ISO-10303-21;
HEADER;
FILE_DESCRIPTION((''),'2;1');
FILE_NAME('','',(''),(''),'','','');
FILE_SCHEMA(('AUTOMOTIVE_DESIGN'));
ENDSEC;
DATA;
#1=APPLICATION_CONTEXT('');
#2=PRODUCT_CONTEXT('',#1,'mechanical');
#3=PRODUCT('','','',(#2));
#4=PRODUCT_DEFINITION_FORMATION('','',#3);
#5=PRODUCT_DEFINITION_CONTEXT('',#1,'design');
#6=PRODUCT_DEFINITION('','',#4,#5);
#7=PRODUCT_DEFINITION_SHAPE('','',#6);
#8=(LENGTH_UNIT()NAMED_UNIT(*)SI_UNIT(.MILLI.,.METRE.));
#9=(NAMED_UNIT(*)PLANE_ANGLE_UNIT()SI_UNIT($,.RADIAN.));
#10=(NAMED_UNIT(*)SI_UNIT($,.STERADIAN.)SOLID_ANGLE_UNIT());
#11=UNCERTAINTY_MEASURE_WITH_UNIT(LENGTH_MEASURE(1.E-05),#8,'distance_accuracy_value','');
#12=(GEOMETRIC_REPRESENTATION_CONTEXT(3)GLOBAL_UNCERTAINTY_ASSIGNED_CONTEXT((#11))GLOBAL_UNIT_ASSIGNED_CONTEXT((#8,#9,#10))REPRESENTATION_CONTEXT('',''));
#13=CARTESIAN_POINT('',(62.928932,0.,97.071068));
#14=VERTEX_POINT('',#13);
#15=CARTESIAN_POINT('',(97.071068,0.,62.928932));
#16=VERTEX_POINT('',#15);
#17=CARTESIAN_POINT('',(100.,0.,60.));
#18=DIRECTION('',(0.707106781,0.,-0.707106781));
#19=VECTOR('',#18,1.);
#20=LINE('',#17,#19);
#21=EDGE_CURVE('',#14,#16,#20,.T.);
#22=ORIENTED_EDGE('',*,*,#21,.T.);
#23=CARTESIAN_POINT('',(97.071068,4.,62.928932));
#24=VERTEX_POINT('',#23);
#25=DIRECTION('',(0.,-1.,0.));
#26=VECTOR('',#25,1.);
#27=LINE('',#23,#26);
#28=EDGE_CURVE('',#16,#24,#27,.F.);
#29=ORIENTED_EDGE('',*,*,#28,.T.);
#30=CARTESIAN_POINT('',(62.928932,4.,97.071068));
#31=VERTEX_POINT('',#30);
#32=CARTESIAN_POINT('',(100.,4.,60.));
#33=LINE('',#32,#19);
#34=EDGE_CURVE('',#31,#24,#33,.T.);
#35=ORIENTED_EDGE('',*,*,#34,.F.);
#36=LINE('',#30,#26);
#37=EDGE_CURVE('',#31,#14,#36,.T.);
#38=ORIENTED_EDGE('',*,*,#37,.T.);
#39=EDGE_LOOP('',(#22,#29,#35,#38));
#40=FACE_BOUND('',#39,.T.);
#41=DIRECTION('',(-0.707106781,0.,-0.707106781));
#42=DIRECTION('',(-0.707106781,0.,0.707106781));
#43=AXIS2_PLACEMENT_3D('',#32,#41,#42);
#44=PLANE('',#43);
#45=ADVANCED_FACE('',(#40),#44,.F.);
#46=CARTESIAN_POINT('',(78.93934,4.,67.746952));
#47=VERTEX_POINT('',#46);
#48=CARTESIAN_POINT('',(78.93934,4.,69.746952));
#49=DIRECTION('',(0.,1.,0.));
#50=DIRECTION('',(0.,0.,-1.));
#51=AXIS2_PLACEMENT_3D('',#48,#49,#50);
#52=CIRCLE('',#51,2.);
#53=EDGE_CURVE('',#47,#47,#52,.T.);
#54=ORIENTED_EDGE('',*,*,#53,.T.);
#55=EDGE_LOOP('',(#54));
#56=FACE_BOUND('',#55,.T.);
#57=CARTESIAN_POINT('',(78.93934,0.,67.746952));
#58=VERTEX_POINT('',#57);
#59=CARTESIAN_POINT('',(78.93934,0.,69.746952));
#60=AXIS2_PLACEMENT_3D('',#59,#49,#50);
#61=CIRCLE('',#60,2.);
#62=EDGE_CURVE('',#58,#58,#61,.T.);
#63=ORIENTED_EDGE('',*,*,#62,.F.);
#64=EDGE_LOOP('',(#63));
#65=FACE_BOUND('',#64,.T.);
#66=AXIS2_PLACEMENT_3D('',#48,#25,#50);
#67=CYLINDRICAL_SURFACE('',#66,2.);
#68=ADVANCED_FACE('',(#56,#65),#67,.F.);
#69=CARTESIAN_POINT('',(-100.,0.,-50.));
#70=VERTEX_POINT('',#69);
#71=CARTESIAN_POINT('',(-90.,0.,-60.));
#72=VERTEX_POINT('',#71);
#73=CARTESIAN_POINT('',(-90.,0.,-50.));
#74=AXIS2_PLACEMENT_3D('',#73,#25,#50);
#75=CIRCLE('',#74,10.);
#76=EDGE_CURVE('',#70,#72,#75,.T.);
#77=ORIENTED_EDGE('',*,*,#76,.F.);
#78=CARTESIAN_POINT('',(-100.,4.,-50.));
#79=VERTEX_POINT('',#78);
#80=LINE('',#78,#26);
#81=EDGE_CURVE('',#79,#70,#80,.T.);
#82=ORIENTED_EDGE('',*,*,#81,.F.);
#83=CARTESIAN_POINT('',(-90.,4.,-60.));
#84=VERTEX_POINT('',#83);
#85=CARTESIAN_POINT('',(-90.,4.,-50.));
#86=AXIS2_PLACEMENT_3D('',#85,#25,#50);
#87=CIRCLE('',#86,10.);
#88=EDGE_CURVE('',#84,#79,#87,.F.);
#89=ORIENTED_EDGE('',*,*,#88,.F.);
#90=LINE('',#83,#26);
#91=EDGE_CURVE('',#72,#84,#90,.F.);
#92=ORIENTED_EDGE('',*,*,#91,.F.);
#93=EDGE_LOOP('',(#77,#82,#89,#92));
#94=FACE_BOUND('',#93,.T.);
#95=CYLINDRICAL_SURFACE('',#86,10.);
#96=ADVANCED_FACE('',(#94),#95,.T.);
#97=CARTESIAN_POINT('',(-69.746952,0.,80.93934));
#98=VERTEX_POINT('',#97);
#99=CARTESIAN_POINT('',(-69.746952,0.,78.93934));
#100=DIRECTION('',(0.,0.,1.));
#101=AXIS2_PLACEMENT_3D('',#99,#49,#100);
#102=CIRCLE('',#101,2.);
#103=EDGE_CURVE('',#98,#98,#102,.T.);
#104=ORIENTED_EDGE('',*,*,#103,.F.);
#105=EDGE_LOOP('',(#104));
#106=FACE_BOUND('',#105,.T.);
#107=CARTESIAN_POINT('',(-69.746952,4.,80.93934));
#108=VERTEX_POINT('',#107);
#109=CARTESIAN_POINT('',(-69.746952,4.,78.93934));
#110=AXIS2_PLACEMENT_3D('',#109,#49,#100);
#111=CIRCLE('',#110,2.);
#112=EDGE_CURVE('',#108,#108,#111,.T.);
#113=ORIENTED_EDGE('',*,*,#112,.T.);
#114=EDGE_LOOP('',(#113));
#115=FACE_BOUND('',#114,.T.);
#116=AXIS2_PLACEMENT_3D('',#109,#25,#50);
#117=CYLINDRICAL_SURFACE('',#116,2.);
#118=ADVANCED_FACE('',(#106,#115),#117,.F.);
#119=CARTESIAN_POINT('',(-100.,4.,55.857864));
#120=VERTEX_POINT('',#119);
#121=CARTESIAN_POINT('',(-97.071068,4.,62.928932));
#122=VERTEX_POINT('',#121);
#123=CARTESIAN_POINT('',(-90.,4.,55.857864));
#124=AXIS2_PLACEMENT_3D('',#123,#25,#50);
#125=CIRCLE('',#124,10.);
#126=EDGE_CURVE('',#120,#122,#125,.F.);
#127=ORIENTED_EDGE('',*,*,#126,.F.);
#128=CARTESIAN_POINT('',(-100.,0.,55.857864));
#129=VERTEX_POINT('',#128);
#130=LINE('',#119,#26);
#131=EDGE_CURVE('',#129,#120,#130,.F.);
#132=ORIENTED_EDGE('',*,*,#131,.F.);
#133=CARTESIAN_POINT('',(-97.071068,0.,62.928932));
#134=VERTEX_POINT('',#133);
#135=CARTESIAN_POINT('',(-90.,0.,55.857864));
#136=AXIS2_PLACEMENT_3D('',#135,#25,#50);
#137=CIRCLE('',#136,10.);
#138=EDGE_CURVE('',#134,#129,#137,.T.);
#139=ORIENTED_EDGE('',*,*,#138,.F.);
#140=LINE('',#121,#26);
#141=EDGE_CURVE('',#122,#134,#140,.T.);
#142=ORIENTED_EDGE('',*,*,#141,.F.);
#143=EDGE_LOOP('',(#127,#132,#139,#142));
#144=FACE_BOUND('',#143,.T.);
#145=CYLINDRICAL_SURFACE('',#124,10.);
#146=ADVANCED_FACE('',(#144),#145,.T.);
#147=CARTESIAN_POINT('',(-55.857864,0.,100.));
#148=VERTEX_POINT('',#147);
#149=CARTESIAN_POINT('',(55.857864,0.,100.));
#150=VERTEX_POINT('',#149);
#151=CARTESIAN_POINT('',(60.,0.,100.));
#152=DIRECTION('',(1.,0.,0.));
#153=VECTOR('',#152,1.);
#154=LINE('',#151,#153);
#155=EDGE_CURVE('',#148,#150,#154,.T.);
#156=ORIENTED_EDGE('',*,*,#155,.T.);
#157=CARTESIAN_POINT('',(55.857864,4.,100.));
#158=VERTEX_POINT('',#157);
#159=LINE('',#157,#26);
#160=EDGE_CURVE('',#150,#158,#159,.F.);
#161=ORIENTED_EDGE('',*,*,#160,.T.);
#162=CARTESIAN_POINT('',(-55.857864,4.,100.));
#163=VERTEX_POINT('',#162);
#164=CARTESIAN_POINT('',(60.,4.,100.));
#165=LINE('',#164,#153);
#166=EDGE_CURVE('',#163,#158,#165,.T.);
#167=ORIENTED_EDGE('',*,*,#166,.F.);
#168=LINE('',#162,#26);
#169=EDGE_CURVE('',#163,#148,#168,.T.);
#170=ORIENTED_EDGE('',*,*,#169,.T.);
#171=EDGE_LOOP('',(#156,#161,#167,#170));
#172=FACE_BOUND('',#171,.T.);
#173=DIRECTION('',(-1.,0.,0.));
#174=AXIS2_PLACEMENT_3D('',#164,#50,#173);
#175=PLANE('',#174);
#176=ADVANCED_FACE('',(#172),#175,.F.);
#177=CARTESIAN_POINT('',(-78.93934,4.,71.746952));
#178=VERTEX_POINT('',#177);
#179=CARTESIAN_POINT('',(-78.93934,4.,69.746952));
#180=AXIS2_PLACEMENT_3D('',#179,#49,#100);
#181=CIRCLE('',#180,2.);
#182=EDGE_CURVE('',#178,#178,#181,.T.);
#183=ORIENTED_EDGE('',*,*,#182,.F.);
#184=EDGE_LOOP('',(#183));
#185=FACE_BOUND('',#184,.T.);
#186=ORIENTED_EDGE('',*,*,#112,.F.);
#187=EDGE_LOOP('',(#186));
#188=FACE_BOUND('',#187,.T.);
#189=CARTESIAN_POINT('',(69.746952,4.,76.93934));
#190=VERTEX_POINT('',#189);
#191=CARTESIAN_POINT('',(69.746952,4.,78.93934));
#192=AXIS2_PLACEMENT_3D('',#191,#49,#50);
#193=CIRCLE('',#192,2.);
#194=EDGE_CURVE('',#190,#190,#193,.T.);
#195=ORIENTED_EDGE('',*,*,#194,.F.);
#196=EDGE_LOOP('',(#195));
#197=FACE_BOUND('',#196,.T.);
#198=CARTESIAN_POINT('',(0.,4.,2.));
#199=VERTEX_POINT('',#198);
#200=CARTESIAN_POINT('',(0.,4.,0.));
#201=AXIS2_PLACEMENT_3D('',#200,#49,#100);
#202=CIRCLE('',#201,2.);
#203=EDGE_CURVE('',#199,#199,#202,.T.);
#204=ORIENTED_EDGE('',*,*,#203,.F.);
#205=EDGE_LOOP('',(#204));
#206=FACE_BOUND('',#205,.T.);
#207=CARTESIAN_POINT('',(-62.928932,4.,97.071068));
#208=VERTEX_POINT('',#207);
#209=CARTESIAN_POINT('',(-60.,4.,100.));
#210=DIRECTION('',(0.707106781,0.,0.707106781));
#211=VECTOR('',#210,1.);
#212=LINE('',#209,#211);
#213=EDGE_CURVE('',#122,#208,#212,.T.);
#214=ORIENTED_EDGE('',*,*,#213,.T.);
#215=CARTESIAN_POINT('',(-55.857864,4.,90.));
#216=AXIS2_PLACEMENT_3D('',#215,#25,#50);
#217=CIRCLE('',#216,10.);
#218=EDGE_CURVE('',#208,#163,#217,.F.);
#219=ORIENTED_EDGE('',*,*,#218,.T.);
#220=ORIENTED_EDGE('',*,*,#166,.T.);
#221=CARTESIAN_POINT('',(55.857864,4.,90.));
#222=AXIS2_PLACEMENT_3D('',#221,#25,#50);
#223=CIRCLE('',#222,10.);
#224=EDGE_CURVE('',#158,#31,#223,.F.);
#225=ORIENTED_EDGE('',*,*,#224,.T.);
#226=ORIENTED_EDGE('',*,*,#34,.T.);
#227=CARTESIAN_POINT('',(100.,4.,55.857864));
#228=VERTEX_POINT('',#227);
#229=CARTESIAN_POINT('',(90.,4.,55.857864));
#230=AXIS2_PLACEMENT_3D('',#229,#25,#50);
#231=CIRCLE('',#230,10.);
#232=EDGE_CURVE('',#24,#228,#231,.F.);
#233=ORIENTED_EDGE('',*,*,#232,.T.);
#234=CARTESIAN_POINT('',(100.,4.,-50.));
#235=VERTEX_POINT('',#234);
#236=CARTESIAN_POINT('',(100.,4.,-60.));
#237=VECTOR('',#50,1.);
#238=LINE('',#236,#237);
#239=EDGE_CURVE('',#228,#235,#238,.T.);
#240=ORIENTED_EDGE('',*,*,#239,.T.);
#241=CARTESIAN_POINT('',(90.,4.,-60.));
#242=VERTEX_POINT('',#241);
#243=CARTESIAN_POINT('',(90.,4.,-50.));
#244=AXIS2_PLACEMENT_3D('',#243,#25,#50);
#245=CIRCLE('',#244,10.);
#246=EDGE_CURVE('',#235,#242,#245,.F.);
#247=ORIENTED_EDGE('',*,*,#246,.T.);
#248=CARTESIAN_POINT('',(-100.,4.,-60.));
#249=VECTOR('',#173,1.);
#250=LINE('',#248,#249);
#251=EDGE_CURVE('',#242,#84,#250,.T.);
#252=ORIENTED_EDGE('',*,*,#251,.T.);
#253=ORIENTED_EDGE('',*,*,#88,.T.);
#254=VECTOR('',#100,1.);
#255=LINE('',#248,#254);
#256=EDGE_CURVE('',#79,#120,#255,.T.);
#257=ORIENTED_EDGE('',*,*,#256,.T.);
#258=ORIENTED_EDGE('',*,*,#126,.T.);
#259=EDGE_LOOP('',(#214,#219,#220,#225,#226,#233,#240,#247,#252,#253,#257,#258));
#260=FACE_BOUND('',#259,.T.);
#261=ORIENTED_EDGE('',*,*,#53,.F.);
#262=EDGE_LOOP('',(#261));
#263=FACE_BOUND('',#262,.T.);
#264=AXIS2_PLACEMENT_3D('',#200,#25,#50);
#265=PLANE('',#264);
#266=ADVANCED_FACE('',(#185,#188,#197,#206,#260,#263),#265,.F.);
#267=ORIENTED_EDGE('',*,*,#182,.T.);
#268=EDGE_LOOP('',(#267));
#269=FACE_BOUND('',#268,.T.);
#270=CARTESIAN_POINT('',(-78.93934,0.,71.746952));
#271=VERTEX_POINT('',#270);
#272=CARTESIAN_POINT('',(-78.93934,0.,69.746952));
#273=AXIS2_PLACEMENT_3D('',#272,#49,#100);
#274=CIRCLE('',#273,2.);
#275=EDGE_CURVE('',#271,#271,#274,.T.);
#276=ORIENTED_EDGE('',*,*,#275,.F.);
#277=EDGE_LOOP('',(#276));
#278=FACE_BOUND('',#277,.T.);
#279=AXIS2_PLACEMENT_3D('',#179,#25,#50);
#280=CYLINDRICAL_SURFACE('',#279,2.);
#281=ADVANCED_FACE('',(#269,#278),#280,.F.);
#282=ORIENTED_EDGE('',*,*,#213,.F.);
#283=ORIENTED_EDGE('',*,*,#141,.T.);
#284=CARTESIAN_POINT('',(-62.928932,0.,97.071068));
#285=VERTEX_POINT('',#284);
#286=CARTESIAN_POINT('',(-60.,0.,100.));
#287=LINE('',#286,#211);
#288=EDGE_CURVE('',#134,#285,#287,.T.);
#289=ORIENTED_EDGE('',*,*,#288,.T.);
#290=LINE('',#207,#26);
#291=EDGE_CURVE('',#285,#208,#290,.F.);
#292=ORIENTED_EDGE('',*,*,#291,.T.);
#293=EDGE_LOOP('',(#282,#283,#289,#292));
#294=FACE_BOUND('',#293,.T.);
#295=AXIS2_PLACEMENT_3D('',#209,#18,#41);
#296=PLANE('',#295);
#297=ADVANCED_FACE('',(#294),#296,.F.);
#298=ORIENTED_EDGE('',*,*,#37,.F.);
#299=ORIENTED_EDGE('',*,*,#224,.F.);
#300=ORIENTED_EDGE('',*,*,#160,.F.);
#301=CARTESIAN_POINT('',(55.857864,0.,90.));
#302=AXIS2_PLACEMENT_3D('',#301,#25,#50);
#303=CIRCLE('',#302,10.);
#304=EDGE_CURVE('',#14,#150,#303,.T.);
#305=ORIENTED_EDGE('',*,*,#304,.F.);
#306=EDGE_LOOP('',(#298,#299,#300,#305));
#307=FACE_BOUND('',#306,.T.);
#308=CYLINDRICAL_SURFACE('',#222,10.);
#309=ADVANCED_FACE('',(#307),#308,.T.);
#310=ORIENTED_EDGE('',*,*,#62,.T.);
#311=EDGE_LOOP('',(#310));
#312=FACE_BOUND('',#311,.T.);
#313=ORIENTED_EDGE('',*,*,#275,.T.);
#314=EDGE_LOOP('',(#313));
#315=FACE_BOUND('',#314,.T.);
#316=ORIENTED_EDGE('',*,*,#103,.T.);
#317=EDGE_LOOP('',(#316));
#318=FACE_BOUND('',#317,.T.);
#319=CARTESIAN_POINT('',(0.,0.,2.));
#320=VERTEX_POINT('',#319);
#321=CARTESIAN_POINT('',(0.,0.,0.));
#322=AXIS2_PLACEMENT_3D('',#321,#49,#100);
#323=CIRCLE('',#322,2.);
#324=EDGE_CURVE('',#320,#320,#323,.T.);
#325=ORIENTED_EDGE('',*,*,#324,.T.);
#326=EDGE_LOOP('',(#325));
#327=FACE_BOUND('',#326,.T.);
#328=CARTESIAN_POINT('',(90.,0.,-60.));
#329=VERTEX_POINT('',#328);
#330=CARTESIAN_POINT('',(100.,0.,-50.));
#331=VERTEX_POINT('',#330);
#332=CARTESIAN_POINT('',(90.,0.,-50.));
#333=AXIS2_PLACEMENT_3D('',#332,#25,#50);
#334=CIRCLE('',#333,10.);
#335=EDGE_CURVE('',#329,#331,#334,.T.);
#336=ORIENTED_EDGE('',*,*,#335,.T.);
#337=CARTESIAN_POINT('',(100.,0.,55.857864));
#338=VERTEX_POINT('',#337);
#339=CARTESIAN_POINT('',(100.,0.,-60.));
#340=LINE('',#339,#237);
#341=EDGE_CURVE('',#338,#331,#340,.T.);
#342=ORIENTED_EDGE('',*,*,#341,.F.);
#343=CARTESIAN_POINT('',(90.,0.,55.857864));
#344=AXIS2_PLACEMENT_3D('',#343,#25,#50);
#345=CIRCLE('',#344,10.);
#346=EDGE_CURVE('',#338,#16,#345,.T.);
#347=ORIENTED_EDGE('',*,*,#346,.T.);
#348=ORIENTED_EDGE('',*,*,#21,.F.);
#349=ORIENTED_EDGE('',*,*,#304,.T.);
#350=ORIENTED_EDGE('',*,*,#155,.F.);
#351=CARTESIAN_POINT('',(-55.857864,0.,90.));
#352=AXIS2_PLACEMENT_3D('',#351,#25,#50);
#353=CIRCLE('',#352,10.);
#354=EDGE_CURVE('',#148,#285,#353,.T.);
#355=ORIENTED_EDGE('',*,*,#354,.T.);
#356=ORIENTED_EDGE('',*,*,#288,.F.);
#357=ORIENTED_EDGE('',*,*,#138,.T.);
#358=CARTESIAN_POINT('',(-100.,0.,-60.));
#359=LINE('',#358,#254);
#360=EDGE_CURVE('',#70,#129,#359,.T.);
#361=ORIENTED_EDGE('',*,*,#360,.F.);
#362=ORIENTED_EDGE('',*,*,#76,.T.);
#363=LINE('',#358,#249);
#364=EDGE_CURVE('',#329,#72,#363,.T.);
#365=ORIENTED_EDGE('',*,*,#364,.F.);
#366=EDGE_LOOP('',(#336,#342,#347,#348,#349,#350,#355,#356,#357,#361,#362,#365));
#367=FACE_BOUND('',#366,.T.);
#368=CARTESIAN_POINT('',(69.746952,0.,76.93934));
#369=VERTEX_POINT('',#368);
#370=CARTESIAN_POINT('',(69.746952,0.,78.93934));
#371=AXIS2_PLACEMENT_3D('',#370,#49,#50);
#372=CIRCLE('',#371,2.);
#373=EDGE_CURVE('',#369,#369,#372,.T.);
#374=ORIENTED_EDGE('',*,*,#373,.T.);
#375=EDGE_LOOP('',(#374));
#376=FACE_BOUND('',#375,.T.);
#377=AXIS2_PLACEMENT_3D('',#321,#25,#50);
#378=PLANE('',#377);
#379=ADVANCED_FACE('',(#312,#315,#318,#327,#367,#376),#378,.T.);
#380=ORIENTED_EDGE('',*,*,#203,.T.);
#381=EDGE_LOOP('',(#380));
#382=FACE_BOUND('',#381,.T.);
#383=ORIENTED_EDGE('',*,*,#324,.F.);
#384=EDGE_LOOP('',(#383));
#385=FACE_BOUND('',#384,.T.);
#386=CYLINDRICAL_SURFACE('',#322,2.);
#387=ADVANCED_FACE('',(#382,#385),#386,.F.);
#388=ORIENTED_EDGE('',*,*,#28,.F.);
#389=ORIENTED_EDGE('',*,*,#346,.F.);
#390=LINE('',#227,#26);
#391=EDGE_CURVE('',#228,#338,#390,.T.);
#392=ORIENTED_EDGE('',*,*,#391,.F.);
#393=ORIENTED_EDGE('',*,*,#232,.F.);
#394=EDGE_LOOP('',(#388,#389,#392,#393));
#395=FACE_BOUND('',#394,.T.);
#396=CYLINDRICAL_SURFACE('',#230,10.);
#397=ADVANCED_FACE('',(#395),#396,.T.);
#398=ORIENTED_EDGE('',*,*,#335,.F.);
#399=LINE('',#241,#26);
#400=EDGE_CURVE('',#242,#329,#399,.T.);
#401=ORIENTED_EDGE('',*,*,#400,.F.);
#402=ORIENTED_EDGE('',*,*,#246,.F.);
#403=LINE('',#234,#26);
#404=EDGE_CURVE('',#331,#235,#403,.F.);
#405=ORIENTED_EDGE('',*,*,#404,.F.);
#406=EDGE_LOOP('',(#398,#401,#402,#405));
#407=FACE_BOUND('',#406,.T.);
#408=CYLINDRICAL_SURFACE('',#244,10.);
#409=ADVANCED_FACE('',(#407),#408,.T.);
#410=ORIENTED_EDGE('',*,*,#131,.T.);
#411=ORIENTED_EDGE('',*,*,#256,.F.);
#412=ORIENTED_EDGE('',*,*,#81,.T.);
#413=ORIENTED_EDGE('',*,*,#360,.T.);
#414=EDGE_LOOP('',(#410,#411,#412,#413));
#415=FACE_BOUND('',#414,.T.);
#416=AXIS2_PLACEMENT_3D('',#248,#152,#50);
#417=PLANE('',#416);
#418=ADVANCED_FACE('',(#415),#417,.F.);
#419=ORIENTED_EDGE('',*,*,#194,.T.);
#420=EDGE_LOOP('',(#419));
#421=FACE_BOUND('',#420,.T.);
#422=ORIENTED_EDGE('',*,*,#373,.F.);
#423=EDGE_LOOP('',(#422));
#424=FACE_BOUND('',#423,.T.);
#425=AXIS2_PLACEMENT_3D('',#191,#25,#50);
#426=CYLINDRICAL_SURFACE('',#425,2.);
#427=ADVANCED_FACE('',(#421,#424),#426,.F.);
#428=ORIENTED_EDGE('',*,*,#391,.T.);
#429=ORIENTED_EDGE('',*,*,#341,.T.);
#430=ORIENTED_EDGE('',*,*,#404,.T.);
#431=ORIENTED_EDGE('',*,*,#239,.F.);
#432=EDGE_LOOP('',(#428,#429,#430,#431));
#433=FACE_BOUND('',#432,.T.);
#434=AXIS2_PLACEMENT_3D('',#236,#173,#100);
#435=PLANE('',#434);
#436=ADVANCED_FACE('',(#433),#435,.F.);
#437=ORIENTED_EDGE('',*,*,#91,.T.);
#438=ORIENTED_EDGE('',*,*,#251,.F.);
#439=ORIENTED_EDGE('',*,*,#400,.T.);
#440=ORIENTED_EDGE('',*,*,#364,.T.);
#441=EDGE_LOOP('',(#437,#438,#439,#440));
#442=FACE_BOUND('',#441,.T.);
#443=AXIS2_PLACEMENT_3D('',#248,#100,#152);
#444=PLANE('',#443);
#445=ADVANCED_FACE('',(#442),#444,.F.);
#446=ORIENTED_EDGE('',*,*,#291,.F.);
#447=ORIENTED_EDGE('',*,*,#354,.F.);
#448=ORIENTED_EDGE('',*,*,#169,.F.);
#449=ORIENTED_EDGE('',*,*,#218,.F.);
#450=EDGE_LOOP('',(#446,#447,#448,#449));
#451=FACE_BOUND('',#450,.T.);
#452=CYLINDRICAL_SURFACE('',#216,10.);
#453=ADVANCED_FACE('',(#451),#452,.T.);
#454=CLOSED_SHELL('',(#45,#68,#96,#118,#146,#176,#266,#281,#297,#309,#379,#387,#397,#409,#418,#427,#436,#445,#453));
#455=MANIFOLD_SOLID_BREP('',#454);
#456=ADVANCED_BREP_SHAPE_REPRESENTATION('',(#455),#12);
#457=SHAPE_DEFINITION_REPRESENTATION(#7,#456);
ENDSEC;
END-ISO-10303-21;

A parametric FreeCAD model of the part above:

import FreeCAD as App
import Part
import Sketcher
from FreeCAD import Vector


def edges_at(feature, points):
    """Names of the edges that pass closest to the given points."""
    edges = feature.Shape.Edges
    near = lambda p: min(range(len(edges)), key=lambda i: edges[i].distToShape(Part.Vertex(*p))[0])
    return sorted({f"Edge{near(p) + 1}" for p in points})


def add_polygon(sketch, points):
    """Adds a closed chain of lines whose ends are joined by coincident constraints."""
    first, n = sketch.GeometryCount, len(points)
    for a, b in zip(points, points[1:] + points[:1]):
        sketch.addGeometry(Part.LineSegment(App.Vector(*a, 0), App.Vector(*b, 0)), False)
    for i in range(n):
        sketch.addConstraint(Sketcher.Constraint("Coincident", first + i, 2, first + (i + 1) % n, 1))

doc = App.newDocument("Part")
body = doc.addObject("PartDesign::Body", "Body")

sketch1 = body.newObject("Sketcher::SketchObject", "Sketch")
sketch1.AttachmentSupport = (doc.getObject("XZ_Plane"), [""])
sketch1.MapMode = "FlatFace"
add_polygon(sketch1, [(-100, -60), (-100, 60), (-60, 100), (60, 100), (100, 60), (100, -60)])
sketch1.addConstraint(Sketcher.Constraint("Vertical", 0))
sketch1.addConstraint(Sketcher.Constraint("Horizontal", 2))
sketch1.addConstraint(Sketcher.Constraint("Vertical", 4))
sketch1.addConstraint(Sketcher.Constraint("Horizontal", 5))
sketch1.addConstraint(Sketcher.Constraint("Symmetric", 0, 2, 4, 2, -1, 1))
sketch1.addConstraint(Sketcher.Constraint("Perpendicular", 1, 3))
sketch1.addConstraint(Sketcher.Constraint("Horizontal", 0, 2, 3, 2))
sketch1.addConstraint(Sketcher.Constraint("Equal", 2, 0))
sketch1.addConstraint(Sketcher.Constraint("Equal", 1, 3))
sketch1.addConstraint(Sketcher.Constraint("DistanceX", 2, 1, 2, 2, 120.0))
sketch1.addConstraint(Sketcher.Constraint("DistanceX", 5, 2, 5, 1, 200.0))
pad1 = body.newObject("PartDesign::Pad", "Pad")
pad1.Profile = sketch1
pad1.Length = 4
pad1.Reversed = True

sketch2 = body.newObject("Sketcher::SketchObject", "Sketch001")
sketch2.AttachmentSupport = (doc.getObject("XZ_Plane"), [""])
sketch2.MapMode = "FlatFace"
sketch2.AttachmentOffset = App.Placement(Vector(0, 0, -4), App.Rotation())
sketch2.addGeometry(Part.Circle(Vector(0, 0, 0), Vector(0, 0, 1), 2), False)
sketch2.addConstraint(Sketcher.Constraint("Coincident", 0, 3, -1, 1))
sketch2.addConstraint(Sketcher.Constraint("Diameter", 0, 4.0))
pocket1 = body.newObject("PartDesign::Pocket", "Pocket")
pocket1.Profile = sketch2
pocket1.Type = "ThroughAll"
pocket1.Reversed = True
doc.recompute()

fillet = body.newObject("PartDesign::Fillet", "Fillet")
fillet.Base = (pocket1, edges_at(pocket1, [
    (100, 2, -60),
    (100, 2, 60),
    (60, 2, 100),
    (-60, 2, 100),
    (-100, 2, 60),
    (-100, 2, -60),
]))
fillet.Radius = 10

sketch3 = body.newObject("Sketcher::SketchObject", "Sketch002")
sketch3.AttachmentSupport = (doc.getObject("XZ_Plane"), [""])
sketch3.MapMode = "FlatFace"
sketch3.addGeometry(Part.Circle(Vector(-78.93934, 69.746952, 0), Vector(0, 0, 1), 2), False)
sketch3.addGeometry(Part.Circle(Vector(-69.746952, 78.93934, 0), Vector(0, 0, 1), 2), False)
sketch3.addGeometry(Part.Circle(Vector(69.746952, 78.93934, 0), Vector(0, 0, 1), 2), False)
sketch3.addGeometry(Part.Circle(Vector(78.93934, 69.746952, 0), Vector(0, 0, 1), 2), False)
sketch3.addConstraint(Sketcher.Constraint("Equal", 0, 1))
sketch3.addConstraint(Sketcher.Constraint("Equal", 1, 2))
sketch3.addConstraint(Sketcher.Constraint("Equal", 2, 3))
sketch3.addConstraint(Sketcher.Constraint("Symmetric", 1, 3, 2, 3, -2))
sketch3.addConstraint(Sketcher.Constraint("Symmetric", 0, 3, 3, 3, -2))
sketch3.addConstraint(Sketcher.Constraint("Diameter", 0, 4.0))
sketch3.addConstraint(Sketcher.Constraint("DistanceX", 0, 3, -1, 1, 78.93934))
sketch3.addConstraint(Sketcher.Constraint("DistanceY", -1, 1, 0, 3, 69.746952))
sketch3.addConstraint(Sketcher.Constraint("DistanceX", 1, 3, -1, 1, 69.746952))
sketch3.addConstraint(Sketcher.Constraint("DistanceY", -1, 1, 1, 3, 78.93934))
pocket2 = body.newObject("PartDesign::Pocket", "Pocket001")
pocket2.Profile = sketch3
pocket2.Type = "ThroughAll"

doc.recompute()
